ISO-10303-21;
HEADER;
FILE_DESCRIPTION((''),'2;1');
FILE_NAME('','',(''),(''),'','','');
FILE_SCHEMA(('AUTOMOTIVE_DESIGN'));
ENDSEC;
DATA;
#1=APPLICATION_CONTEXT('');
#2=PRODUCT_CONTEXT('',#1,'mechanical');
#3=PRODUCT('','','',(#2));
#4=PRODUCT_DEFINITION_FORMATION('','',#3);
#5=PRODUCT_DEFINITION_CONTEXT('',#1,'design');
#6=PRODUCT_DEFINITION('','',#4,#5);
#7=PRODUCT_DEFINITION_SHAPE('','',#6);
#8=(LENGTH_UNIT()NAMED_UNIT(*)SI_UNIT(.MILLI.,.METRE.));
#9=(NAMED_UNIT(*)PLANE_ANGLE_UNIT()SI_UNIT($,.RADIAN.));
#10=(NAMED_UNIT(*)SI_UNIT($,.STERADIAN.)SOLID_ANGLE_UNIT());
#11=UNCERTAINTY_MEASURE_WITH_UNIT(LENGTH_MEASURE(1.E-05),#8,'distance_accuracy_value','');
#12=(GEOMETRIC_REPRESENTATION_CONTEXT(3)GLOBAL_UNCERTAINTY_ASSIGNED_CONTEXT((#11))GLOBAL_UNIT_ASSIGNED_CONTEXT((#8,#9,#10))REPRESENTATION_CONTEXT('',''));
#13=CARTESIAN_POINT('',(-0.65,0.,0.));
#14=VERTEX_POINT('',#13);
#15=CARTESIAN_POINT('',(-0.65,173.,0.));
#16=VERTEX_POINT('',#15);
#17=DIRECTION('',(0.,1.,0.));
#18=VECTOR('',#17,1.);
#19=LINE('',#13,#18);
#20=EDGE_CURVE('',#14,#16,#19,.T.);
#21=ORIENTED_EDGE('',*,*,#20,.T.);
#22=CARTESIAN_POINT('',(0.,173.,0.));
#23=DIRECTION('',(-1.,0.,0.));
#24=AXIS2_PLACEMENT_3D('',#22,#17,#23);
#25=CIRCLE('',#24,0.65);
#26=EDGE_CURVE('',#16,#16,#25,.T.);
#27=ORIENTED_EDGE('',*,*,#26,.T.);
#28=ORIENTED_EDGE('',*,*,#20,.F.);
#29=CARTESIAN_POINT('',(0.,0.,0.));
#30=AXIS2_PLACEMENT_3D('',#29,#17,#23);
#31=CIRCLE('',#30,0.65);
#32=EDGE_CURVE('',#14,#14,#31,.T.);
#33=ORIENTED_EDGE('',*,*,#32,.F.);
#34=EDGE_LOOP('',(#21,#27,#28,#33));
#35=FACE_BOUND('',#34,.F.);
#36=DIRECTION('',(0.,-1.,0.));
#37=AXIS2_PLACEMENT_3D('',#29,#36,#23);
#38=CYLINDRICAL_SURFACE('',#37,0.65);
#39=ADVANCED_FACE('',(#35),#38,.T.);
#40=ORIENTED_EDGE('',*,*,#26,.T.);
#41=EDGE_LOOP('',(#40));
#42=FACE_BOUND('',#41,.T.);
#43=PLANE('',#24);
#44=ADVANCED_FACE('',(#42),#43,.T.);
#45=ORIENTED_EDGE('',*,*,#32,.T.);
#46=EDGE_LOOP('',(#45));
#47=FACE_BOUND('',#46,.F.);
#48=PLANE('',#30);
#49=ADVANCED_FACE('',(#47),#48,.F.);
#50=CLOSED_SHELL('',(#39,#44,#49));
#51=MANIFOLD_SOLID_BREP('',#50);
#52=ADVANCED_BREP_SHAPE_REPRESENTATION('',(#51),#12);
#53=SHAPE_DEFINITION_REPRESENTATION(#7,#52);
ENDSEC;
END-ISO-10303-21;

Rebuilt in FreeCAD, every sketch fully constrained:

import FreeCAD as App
import Part
import Sketcher
from FreeCAD import Vector
Q = App.Units.Quantity

doc = App.newDocument("Part")
body = doc.addObject("PartDesign::Body", "Body")

sketch1 = body.newObject("Sketcher::SketchObject", "Sketch")
sketch1.AttachmentSupport = (doc.getObject("XZ_Plane"), [""])
sketch1.MapMode = "FlatFace"
sketch1.addGeometry(Part.Circle(Vector(0, 0, 0), Vector(0, 0, 1), 0.7), False)
sketch1.addConstraint(Sketcher.Constraint("Coincident", 0, 3, -1, 1))
sketch1.addConstraint(Sketcher.Constraint("Diameter", 0, Q("1.3 mm")))
pad1 = body.newObject("PartDesign::Pad", "Pad")
pad1.Profile = sketch1
pad1.Length = 173
pad1.Reversed = True

doc.recompute()
